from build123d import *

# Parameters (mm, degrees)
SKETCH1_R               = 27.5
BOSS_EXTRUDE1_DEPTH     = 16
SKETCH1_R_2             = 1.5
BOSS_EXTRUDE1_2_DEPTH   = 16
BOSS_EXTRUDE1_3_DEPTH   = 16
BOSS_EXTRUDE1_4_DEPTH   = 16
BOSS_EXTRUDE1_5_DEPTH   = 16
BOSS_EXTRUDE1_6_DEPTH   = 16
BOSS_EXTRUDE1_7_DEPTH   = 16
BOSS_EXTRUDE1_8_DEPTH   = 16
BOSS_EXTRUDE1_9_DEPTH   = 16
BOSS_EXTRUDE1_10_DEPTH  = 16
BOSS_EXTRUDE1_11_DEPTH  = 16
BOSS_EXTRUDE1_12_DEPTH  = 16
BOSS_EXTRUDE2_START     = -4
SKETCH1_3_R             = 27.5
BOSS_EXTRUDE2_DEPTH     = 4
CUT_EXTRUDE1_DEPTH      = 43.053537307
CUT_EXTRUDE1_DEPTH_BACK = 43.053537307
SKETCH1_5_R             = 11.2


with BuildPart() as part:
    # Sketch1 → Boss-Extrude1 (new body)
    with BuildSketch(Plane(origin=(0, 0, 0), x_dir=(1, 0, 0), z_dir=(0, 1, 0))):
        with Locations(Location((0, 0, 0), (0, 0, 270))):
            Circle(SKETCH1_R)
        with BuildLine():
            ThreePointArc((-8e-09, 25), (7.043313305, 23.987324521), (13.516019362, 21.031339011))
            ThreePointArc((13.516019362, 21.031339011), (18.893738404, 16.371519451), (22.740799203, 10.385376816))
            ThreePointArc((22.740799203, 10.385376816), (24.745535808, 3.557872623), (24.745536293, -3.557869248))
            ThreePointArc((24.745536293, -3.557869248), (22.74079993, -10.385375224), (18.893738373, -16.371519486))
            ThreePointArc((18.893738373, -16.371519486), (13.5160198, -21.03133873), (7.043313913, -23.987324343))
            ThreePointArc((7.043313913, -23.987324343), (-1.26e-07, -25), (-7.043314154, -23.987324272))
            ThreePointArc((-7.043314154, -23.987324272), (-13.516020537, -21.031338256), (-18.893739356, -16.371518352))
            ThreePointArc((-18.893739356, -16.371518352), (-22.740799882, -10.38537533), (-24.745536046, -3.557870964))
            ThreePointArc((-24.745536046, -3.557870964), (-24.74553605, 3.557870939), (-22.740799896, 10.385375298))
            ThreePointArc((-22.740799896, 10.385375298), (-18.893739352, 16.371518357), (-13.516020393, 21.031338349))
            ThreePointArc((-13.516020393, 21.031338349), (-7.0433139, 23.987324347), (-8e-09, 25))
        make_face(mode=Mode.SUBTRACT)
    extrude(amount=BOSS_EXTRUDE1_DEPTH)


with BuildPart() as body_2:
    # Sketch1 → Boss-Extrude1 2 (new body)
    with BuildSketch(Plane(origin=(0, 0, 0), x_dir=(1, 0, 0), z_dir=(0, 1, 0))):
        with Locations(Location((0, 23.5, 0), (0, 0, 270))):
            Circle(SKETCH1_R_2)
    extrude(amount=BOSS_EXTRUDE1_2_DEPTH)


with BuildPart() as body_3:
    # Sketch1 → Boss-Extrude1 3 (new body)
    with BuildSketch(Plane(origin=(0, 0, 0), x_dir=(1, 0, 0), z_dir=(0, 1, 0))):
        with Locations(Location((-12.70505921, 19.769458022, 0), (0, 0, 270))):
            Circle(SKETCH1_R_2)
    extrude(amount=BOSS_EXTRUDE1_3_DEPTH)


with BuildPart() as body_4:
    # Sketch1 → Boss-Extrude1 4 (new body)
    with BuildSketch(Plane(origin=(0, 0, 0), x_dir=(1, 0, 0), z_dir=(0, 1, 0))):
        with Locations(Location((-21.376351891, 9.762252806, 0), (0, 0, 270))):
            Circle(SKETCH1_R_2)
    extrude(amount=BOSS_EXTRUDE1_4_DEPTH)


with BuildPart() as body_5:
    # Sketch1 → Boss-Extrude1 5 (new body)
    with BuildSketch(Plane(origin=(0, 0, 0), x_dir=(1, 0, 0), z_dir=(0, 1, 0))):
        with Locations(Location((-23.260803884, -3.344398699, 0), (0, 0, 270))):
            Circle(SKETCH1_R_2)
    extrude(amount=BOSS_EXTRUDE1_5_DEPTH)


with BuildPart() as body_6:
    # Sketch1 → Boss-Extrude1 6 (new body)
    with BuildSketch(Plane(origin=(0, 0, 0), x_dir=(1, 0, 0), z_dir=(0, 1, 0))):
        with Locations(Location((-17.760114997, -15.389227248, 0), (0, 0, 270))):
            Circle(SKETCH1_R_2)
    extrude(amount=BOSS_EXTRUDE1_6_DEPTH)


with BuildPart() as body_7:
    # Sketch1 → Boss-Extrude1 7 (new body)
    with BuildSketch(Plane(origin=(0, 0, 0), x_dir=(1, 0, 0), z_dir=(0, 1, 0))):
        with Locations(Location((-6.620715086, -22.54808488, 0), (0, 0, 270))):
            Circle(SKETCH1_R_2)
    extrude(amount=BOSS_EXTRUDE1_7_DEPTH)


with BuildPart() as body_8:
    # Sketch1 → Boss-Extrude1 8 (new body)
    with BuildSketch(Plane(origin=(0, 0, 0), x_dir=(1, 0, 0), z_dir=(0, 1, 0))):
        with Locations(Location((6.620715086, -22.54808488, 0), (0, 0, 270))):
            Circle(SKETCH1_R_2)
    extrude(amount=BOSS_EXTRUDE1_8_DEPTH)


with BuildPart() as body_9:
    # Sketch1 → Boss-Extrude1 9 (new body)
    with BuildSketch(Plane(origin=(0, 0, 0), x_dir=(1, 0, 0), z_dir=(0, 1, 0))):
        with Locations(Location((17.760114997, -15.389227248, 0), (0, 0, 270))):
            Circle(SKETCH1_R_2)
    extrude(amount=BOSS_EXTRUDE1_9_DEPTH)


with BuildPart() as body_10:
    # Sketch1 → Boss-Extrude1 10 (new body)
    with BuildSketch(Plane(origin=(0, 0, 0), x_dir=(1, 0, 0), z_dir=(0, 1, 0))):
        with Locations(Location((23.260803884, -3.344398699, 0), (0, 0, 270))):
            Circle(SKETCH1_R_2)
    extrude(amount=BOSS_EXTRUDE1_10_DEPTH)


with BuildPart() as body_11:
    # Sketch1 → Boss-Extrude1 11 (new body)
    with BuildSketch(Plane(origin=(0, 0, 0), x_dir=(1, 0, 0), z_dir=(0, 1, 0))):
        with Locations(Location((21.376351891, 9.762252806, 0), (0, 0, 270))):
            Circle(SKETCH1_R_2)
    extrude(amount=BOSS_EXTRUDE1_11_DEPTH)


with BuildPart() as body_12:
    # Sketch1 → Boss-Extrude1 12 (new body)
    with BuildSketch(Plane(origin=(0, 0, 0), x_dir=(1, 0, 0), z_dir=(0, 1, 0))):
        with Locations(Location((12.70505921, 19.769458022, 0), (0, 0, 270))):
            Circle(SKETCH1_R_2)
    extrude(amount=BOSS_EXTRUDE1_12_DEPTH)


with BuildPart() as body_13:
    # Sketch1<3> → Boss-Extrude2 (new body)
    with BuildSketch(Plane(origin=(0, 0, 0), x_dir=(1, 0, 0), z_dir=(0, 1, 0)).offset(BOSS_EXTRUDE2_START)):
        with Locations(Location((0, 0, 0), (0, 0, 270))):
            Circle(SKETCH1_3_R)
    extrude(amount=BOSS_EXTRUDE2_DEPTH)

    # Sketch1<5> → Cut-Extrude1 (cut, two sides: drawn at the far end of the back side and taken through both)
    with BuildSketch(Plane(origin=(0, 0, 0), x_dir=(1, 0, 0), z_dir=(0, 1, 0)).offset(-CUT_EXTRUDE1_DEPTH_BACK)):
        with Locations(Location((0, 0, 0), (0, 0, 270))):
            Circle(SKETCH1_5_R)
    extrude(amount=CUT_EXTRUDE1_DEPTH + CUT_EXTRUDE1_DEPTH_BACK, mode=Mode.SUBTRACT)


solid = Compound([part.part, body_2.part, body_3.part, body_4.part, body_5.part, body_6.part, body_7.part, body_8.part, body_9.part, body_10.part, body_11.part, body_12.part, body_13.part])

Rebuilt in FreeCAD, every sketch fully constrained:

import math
import FreeCAD as App
import Part
import Sketcher
Q = App.Units.Quantity

doc = App.newDocument("Part")
params = doc.addObject("Spreadsheet::Sheet", "Params")
for row, (alias, value) in enumerate([
    ("sketch1_diameter", "55 mm"),
    ("sketch1_radius", "25 mm"),
    ("pad1_length", "16 mm"),
    ("sketch2_diameter", "3 mm"),
    ("pad2_length", "16 mm"),
    ("sketch3_diameter", "3 mm"),
    ("pad3_length", "16 mm"),
    ("sketch4_diameter", "3 mm"),
    ("pad4_length", "16 mm"),
    ("sketch5_diameter", "3 mm"),
    ("pad5_length", "16 mm"),
    ("sketch6_diameter", "3 mm"),
    ("pad6_length", "16 mm"),
    ("sketch7_diameter", "3 mm"),
    ("pad7_length", "16 mm"),
    ("sketch8_diameter", "3 mm"),
    ("pad8_length", "16 mm"),
    ("sketch9_diameter", "3 mm"),
    ("pad9_length", "16 mm"),
    ("sketch10_diameter", "3 mm"),
    ("pad10_length", "16 mm"),
    ("sketch11_diameter", "3 mm"),
    ("pad11_length", "16 mm"),
    ("sketch12_diameter", "3 mm"),
    ("pad12_length", "16 mm"),
    ("sketch13_diameter", "55 mm"),
    ("pad13_length", "4 mm"),
    ("sketch14_diameter", "22.4 mm"),
], start=1):
    params.set(f"A{row}", alias)
    params.set(f"B{row}", "=" + value)
    params.setAlias(f"B{row}", alias)

body = doc.addObject("PartDesign::Body", "Body")

# Sketch on XZ plane
sketch1 = body.newObject("Sketcher::SketchObject", "Sketch")
sketch1.AttachmentSupport = (doc.getObject("XZ_Plane"), [""])
sketch1.MapMode = "FlatFace"
sketch1.addGeometry([
    Part.Circle(App.Vector(0, 0, 0), App.Vector(0, 0, 1), 28),  # 0
    Part.ArcOfCircle(Part.Circle(App.Vector(0, 0, 0), App.Vector(0, 0, 1), 25), math.radians(-123), math.radians(-90)),  # 1
    Part.ArcOfCircle(Part.Circle(App.Vector(0, 0, 0), App.Vector(0, 0, 1), 25), math.radians(-90), math.radians(-57)),  # 2
    Part.ArcOfCircle(Part.Circle(App.Vector(0, 0, 0), App.Vector(0, 0, 1), 25), math.radians(-57), math.radians(-25)),  # 3
    Part.ArcOfCircle(Part.Circle(App.Vector(0, 0, 0), App.Vector(0, 0, 1), 25), math.radians(-25), math.radians(8)),  # 4
    Part.ArcOfCircle(Part.Circle(App.Vector(0, 0, 0), App.Vector(0, 0, 1), 25), math.radians(8), math.radians(41)),  # 5
    Part.ArcOfCircle(Part.Circle(App.Vector(0, 0, 0), App.Vector(0, 0, 1), 25), math.radians(41), math.radians(74)),  # 6
    Part.ArcOfCircle(Part.Circle(App.Vector(0, 0, 0), App.Vector(0, 0, 1), 25), math.radians(74), math.radians(106)),  # 7
    Part.ArcOfCircle(Part.Circle(App.Vector(0, 0, 0), App.Vector(0, 0, 1), 25), math.radians(106), math.radians(139)),  # 8
    Part.ArcOfCircle(Part.Circle(App.Vector(0, 0, 0), App.Vector(0, 0, 1), 25), math.radians(139), math.radians(172)),  # 9
    Part.ArcOfCircle(Part.Circle(App.Vector(0, 0, 0), App.Vector(0, 0, 1), 25), math.radians(172), math.radians(205)),  # 10
    Part.ArcOfCircle(Part.Circle(App.Vector(0, 0, 0), App.Vector(0, 0, 1), 25), math.radians(-155), math.radians(-123)),  # 11
], False)
sketch1.addConstraint([
    Sketcher.Constraint("Tangent", 1, 2, 2, 1),
    Sketcher.Constraint("Tangent", 2, 2, 3, 1),
    Sketcher.Constraint("Tangent", 3, 2, 4, 1),
    Sketcher.Constraint("Tangent", 4, 2, 5, 1),
    Sketcher.Constraint("Tangent", 5, 2, 6, 1),
    Sketcher.Constraint("Tangent", 6, 2, 7, 1),
    Sketcher.Constraint("Tangent", 7, 2, 8, 1),
    Sketcher.Constraint("Tangent", 8, 2, 9, 1),
    Sketcher.Constraint("Tangent", 9, 2, 10, 1),
    Sketcher.Constraint("Tangent", 10, 2, 11, 1),
    Sketcher.Constraint("Tangent", 11, 2, 1, 1),
    Sketcher.Constraint("Coincident", 0, 3, -1, 1),
    Sketcher.Constraint("Coincident", 1, 3, -1, 1),
    Sketcher.Constraint("Coincident", 3, 3, -1, 1),
    Sketcher.Constraint("Coincident", 5, 3, -1, 1),
    Sketcher.Constraint("Coincident", 7, 3, -1, 1),
    Sketcher.Constraint("Coincident", 9, 3, -1, 1),
    Sketcher.Constraint("PointOnObject", 1, 2, -2),
    Sketcher.Constraint("Horizontal", 6, 2, 7, 2),
    Sketcher.Constraint("Horizontal", 5, 2, 8, 2),
    Sketcher.Constraint("Horizontal", 4, 2, 9, 2),
    Sketcher.Constraint("Horizontal", 3, 2, 10, 2),
    Sketcher.Constraint("Horizontal", 2, 2, 11, 2),
    Sketcher.Constraint("Diameter", 0, Q("55 mm")),
    Sketcher.Constraint("Radius", 1, Q("25 mm")),
    Sketcher.Constraint("DistanceX", -1, 1, 3, 2, Q("22.740799 mm")),
    Sketcher.Constraint("DistanceX", -1, 1, 2, 2, Q("13.516019 mm")),
    Sketcher.Constraint("DistanceY", -1, 1, 4, 2, Q("3.557869 mm")),
    Sketcher.Constraint("DistanceX", -1, 1, 5, 2, Q("18.893738 mm")),
    Sketcher.Constraint("DistanceX", 7, 2, 6, 2, Q("14.086628 mm")),
])
sketch1.setExpression("Constraints[23]", "Params.sketch1_diameter")
sketch1.setExpression("Constraints[24]", "Params.sketch1_radius")
pad1 = body.newObject("PartDesign::Pad", "Pad")
pad1.Profile = sketch1
pad1.setExpression("Length", "Params.pad1_length")
pad1.Reversed = True
body2 = doc.addObject("PartDesign::Body", "Body001")

# Sketch on XZ plane
sketch2 = body2.newObject("Sketcher::SketchObject", "Sketch001")
sketch2.AttachmentSupport = (doc.getObject("XZ_Plane001"), [""])
sketch2.MapMode = "FlatFace"
sketch2.addGeometry(Part.Circle(App.Vector(0, -23.5, 0), App.Vector(0, 0, 1), 1.5), False)
sketch2.addConstraint([
    Sketcher.Constraint("PointOnObject", 0, 3, -2),
    Sketcher.Constraint("Diameter", 0, Q("3 mm")),
    Sketcher.Constraint("DistanceY", 0, 3, -1, 1, Q("23.5 mm")),
])
sketch2.setExpression("Constraints[1]", "Params.sketch2_diameter")
pad2 = body2.newObject("PartDesign::Pad", "Pad001")
pad2.Profile = sketch2
pad2.setExpression("Length", "Params.pad2_length")
pad2.Reversed = True
body3 = doc.addObject("PartDesign::Body", "Body002")

# Sketch on XZ plane
sketch3 = body3.newObject("Sketcher::SketchObject", "Sketch002")
sketch3.AttachmentSupport = (doc.getObject("XZ_Plane002"), [""])
sketch3.MapMode = "FlatFace"
sketch3.addGeometry(Part.Circle(App.Vector(-12.7, -19.8, 0), App.Vector(0, 0, 1), 1.5), False)
sketch3.addConstraint([
    Sketcher.Constraint("Diameter", 0, Q("3 mm")),
    Sketcher.Constraint("DistanceX", 0, 3, -1, 1, Q("12.705059 mm")),
    Sketcher.Constraint("DistanceY", 0, 3, -1, 1, Q("19.769458 mm")),
])
sketch3.setExpression("Constraints[0]", "Params.sketch3_diameter")
pad3 = body3.newObject("PartDesign::Pad", "Pad002")
pad3.Profile = sketch3
pad3.setExpression("Length", "Params.pad3_length")
pad3.Reversed = True
body4 = doc.addObject("PartDesign::Body", "Body003")

# Sketch on XZ plane
sketch4 = body4.newObject("Sketcher::SketchObject", "Sketch003")
sketch4.AttachmentSupport = (doc.getObject("XZ_Plane003"), [""])
sketch4.MapMode = "FlatFace"
sketch4.addGeometry(Part.Circle(App.Vector(-21.4, -9.8, 0), App.Vector(0, 0, 1), 1.5), False)
sketch4.addConstraint([
    Sketcher.Constraint("Diameter", 0, Q("3 mm")),
    Sketcher.Constraint("DistanceX", 0, 3, -1, 1, Q("21.376352 mm")),
    Sketcher.Constraint("DistanceY", 0, 3, -1, 1, Q("9.762253 mm")),
])
sketch4.setExpression("Constraints[0]", "Params.sketch4_diameter")
pad4 = body4.newObject("PartDesign::Pad", "Pad003")
pad4.Profile = sketch4
pad4.setExpression("Length", "Params.pad4_length")
pad4.Reversed = True
body5 = doc.addObject("PartDesign::Body", "Body004")

# Sketch on XZ plane
sketch5 = body5.newObject("Sketcher::SketchObject", "Sketch004")
sketch5.AttachmentSupport = (doc.getObject("XZ_Plane004"), [""])
sketch5.MapMode = "FlatFace"
sketch5.addGeometry(Part.Circle(App.Vector(-23.3, 3.3, 0), App.Vector(0, 0, 1), 1.5), False)
sketch5.addConstraint([
    Sketcher.Constraint("Diameter", 0, Q("3 mm")),
    Sketcher.Constraint("DistanceY", -1, 1, 0, 3, Q("3.344399 mm")),
    Sketcher.Constraint("DistanceX", 0, 3, -1, 1, Q("23.260804 mm")),
])
sketch5.setExpression("Constraints[0]", "Params.sketch5_diameter")
pad5 = body5.newObject("PartDesign::Pad", "Pad004")
pad5.Profile = sketch5
pad5.setExpression("Length", "Params.pad5_length")
pad5.Reversed = True
body6 = doc.addObject("PartDesign::Body", "Body005")

# Sketch on XZ plane
sketch6 = body6.newObject("Sketcher::SketchObject", "Sketch005")
sketch6.AttachmentSupport = (doc.getObject("XZ_Plane005"), [""])
sketch6.MapMode = "FlatFace"
sketch6.addGeometry(Part.Circle(App.Vector(-17.8, 15.4, 0), App.Vector(0, 0, 1), 1.5), False)
sketch6.addConstraint([
    Sketcher.Constraint("Diameter", 0, Q("3 mm")),
    Sketcher.Constraint("DistanceX", 0, 3, -1, 1, Q("17.760115 mm")),
    Sketcher.Constraint("DistanceY", -1, 1, 0, 3, Q("15.389227 mm")),
])
sketch6.setExpression("Constraints[0]", "Params.sketch6_diameter")
pad6 = body6.newObject("PartDesign::Pad", "Pad005")
pad6.Profile = sketch6
pad6.setExpression("Length", "Params.pad6_length")
pad6.Reversed = True
body7 = doc.addObject("PartDesign::Body", "Body006")

# Sketch on XZ plane
sketch7 = body7.newObject("Sketcher::SketchObject", "Sketch006")
sketch7.AttachmentSupport = (doc.getObject("XZ_Plane006"), [""])
sketch7.MapMode = "FlatFace"
sketch7.addGeometry(Part.Circle(App.Vector(-6.6, 22.5, 0), App.Vector(0, 0, 1), 1.5), False)
sketch7.addConstraint([
    Sketcher.Constraint("Diameter", 0, Q("3 mm")),
    Sketcher.Constraint("DistanceX", 0, 3, -1, 1, Q("6.620715 mm")),
    Sketcher.Constraint("DistanceY", -1, 1, 0, 3, Q("22.548085 mm")),
])
sketch7.setExpression("Constraints[0]", "Params.sketch7_diameter")
pad7 = body7.newObject("PartDesign::Pad", "Pad006")
pad7.Profile = sketch7
pad7.setExpression("Length", "Params.pad7_length")
pad7.Reversed = True
body8 = doc.addObject("PartDesign::Body", "Body007")

# Sketch on XZ plane
sketch8 = body8.newObject("Sketcher::SketchObject", "Sketch007")
sketch8.AttachmentSupport = (doc.getObject("XZ_Plane007"), [""])
sketch8.MapMode = "FlatFace"
sketch8.addGeometry(Part.Circle(App.Vector(6.6, 22.5, 0), App.Vector(0, 0, 1), 1.5), False)
sketch8.addConstraint([
    Sketcher.Constraint("Diameter", 0, Q("3 mm")),
    Sketcher.Constraint("DistanceX", -1, 1, 0, 3, Q("6.620715 mm")),
    Sketcher.Constraint("DistanceY", -1, 1, 0, 3, Q("22.548085 mm")),
])
sketch8.setExpression("Constraints[0]", "Params.sketch8_diameter")
pad8 = body8.newObject("PartDesign::Pad", "Pad007")
pad8.Profile = sketch8
pad8.setExpression("Length", "Params.pad8_length")
pad8.Reversed = True
body9 = doc.addObject("PartDesign::Body", "Body008")

# Sketch on XZ plane
sketch9 = body9.newObject("Sketcher::SketchObject", "Sketch008")
sketch9.AttachmentSupport = (doc.getObject("XZ_Plane008"), [""])
sketch9.MapMode = "FlatFace"
sketch9.addGeometry(Part.Circle(App.Vector(17.8, 15.4, 0), App.Vector(0, 0, 1), 1.5), False)
sketch9.addConstraint([
    Sketcher.Constraint("Diameter", 0, Q("3 mm")),
    Sketcher.Constraint("DistanceX", -1, 1, 0, 3, Q("17.760115 mm")),
    Sketcher.Constraint("DistanceY", -1, 1, 0, 3, Q("15.389227 mm")),
])
sketch9.setExpression("Constraints[0]", "Params.sketch9_diameter")
pad9 = body9.newObject("PartDesign::Pad", "Pad008")
pad9.Profile = sketch9
pad9.setExpression("Length", "Params.pad9_length")
pad9.Reversed = True
body10 = doc.addObject("PartDesign::Body", "Body009")

# Sketch on XZ plane
sketch10 = body10.newObject("Sketcher::SketchObject", "Sketch009")
sketch10.AttachmentSupport = (doc.getObject("XZ_Plane009"), [""])
sketch10.MapMode = "FlatFace"
sketch10.addGeometry(Part.Circle(App.Vector(23.3, 3.3, 0), App.Vector(0, 0, 1), 1.5), False)
sketch10.addConstraint([
    Sketcher.Constraint("Diameter", 0, Q("3 mm")),
    Sketcher.Constraint("DistanceY", -1, 1, 0, 3, Q("3.344399 mm")),
    Sketcher.Constraint("DistanceX", -1, 1, 0, 3, Q("23.260804 mm")),
])
sketch10.setExpression("Constraints[0]", "Params.sketch10_diameter")
pad10 = body10.newObject("PartDesign::Pad", "Pad009")
pad10.Profile = sketch10
pad10.setExpression("Length", "Params.pad10_length")
pad10.Reversed = True
body11 = doc.addObject("PartDesign::Body", "Body010")

# Sketch on XZ plane
sketch11 = body11.newObject("Sketcher::SketchObject", "Sketch010")
sketch11.AttachmentSupport = (doc.getObject("XZ_Plane010"), [""])
sketch11.MapMode = "FlatFace"
sketch11.addGeometry(Part.Circle(App.Vector(21.4, -9.8, 0), App.Vector(0, 0, 1), 1.5), False)
sketch11.addConstraint([
    Sketcher.Constraint("Diameter", 0, Q("3 mm")),
    Sketcher.Constraint("DistanceX", -1, 1, 0, 3, Q("21.376352 mm")),
    Sketcher.Constraint("DistanceY", 0, 3, -1, 1, Q("9.762253 mm")),
])
sketch11.setExpression("Constraints[0]", "Params.sketch11_diameter")
pad11 = body11.newObject("PartDesign::Pad", "Pad010")
pad11.Profile = sketch11
pad11.setExpression("Length", "Params.pad11_length")
pad11.Reversed = True
body12 = doc.addObject("PartDesign::Body", "Body011")

# Sketch on XZ plane
sketch12 = body12.newObject("Sketcher::SketchObject", "Sketch011")
sketch12.AttachmentSupport = (doc.getObject("XZ_Plane011"), [""])
sketch12.MapMode = "FlatFace"
sketch12.addGeometry(Part.Circle(App.Vector(12.7, -19.8, 0), App.Vector(0, 0, 1), 1.5), False)
sketch12.addConstraint([
    Sketcher.Constraint("Diameter", 0, Q("3 mm")),
    Sketcher.Constraint("DistanceX", -1, 1, 0, 3, Q("12.705059 mm")),
    Sketcher.Constraint("DistanceY", 0, 3, -1, 1, Q("19.769458 mm")),
])
sketch12.setExpression("Constraints[0]", "Params.sketch12_diameter")
pad12 = body12.newObject("PartDesign::Pad", "Pad011")
pad12.Profile = sketch12
pad12.setExpression("Length", "Params.pad12_length")
pad12.Reversed = True
body13 = doc.addObject("PartDesign::Body", "Body012")

# Sketch on XZ plane
sketch13 = body13.newObject("Sketcher::SketchObject", "Sketch012")
sketch13.AttachmentSupport = (doc.getObject("XZ_Plane012"), [""])
sketch13.MapMode = "FlatFace"
sketch13.AttachmentOffset = App.Placement(App.Vector(0, 0, 4), App.Rotation())
sketch13.addGeometry(Part.Circle(App.Vector(0, 0, 0), App.Vector(0, 0, 1), 28), False)
sketch13.addConstraint([
    Sketcher.Constraint("Coincident", 0, 3, -1, 1),
    Sketcher.Constraint("Diameter", 0, Q("55 mm")),
])
sketch13.setExpression("Constraints[1]", "Params.sketch13_diameter")
pad13 = body13.newObject("PartDesign::Pad", "Pad012")
pad13.Profile = sketch13
pad13.setExpression("Length", "Params.pad13_length")
pad13.Reversed = True

# Sketch on XZ plane
sketch14 = body13.newObject("Sketcher::SketchObject", "Sketch013")
sketch14.AttachmentSupport = (doc.getObject("XZ_Plane012"), [""])
sketch14.MapMode = "FlatFace"
sketch14.addGeometry(Part.Circle(App.Vector(0, 0, 0), App.Vector(0, 0, 1), 11), False)
sketch14.addConstraint([
    Sketcher.Constraint("Coincident", 0, 3, -1, 1),
    Sketcher.Constraint("Diameter", 0, Q("22.4 mm")),
])
sketch14.setExpression("Constraints[1]", "Params.sketch14_diameter")
pocket1 = body13.newObject("PartDesign::Pocket", "Pocket")
pocket1.Profile = sketch14
pocket1.Type = "ThroughAll"
pocket1.Midplane = True

doc.recompute()
